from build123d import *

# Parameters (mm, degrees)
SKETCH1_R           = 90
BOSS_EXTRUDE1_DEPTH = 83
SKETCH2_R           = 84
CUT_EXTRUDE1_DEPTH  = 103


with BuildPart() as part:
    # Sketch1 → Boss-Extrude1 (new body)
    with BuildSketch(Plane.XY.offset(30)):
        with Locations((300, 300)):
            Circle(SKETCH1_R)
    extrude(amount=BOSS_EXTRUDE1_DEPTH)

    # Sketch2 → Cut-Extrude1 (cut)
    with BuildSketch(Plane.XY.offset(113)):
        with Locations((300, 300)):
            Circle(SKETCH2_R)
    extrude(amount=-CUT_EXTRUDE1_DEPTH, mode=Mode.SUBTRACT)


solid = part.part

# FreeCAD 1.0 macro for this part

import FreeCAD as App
import Part
import Sketcher

V = App.Vector
Q = App.Units.Quantity

doc = App.newDocument("Part")
params = doc.addObject("Spreadsheet::Sheet", "Params")
for row, (alias, value) in enumerate([
    ("sketch1_diameter", "180 mm"),
    ("pad1_length", "83 mm"),
    ("sketch2_diameter", "168 mm"),
    ("pocket1_length", "103 mm"),
], start=1):
    params.set(f"A{row}", alias)
    params.set(f"B{row}", "=" + value)
    params.setAlias(f"B{row}", alias)

body = doc.addObject("PartDesign::Body", "Body")

sketch1 = body.newObject("Sketcher::SketchObject", "Sketch")
sketch1.AttachmentSupport = (doc.getObject("XY_Plane"), [""])
sketch1.MapMode = "FlatFace"
sketch1.AttachmentOffset = App.Placement(V(0, 0, 30), App.Rotation())
sketch1.addGeometry(Part.Circle(V(300, 300, 0), V(0, 0, 1), 90), False)
sketch1.addConstraint(Sketcher.Constraint("Diameter", 0, Q("180 mm")))
sketch1.addConstraint(Sketcher.Constraint("DistanceX", -1, 1, 0, 3, Q("300 mm")))
sketch1.addConstraint(Sketcher.Constraint("DistanceY", -1, 1, 0, 3, Q("300 mm")))
sketch1.setExpression("Constraints[0]", "Params.sketch1_diameter")
pad1 = body.newObject("PartDesign::Pad", "Pad")
pad1.Profile = sketch1
pad1.setExpression("Length", "Params.pad1_length")

sketch2 = body.newObject("Sketcher::SketchObject", "Sketch001")
sketch2.AttachmentSupport = (doc.getObject("XY_Plane"), [""])
sketch2.MapMode = "FlatFace"
sketch2.AttachmentOffset = App.Placement(V(0, 0, 113), App.Rotation())
sketch2.addGeometry(Part.Circle(V(300, 300, 0), V(0, 0, 1), 84), False)
sketch2.addConstraint(Sketcher.Constraint("Diameter", 0, Q("168 mm")))
sketch2.addConstraint(Sketcher.Constraint("DistanceX", -1, 1, 0, 3, Q("300 mm")))
sketch2.addConstraint(Sketcher.Constraint("DistanceY", -1, 1, 0, 3, Q("300 mm")))
sketch2.setExpression("Constraints[0]", "Params.sketch2_diameter")
pocket1 = body.newObject("PartDesign::Pocket", "Pocket")
pocket1.Profile = sketch2
pocket1.setExpression("Length", "Params.pocket1_length")

doc.recompute()
